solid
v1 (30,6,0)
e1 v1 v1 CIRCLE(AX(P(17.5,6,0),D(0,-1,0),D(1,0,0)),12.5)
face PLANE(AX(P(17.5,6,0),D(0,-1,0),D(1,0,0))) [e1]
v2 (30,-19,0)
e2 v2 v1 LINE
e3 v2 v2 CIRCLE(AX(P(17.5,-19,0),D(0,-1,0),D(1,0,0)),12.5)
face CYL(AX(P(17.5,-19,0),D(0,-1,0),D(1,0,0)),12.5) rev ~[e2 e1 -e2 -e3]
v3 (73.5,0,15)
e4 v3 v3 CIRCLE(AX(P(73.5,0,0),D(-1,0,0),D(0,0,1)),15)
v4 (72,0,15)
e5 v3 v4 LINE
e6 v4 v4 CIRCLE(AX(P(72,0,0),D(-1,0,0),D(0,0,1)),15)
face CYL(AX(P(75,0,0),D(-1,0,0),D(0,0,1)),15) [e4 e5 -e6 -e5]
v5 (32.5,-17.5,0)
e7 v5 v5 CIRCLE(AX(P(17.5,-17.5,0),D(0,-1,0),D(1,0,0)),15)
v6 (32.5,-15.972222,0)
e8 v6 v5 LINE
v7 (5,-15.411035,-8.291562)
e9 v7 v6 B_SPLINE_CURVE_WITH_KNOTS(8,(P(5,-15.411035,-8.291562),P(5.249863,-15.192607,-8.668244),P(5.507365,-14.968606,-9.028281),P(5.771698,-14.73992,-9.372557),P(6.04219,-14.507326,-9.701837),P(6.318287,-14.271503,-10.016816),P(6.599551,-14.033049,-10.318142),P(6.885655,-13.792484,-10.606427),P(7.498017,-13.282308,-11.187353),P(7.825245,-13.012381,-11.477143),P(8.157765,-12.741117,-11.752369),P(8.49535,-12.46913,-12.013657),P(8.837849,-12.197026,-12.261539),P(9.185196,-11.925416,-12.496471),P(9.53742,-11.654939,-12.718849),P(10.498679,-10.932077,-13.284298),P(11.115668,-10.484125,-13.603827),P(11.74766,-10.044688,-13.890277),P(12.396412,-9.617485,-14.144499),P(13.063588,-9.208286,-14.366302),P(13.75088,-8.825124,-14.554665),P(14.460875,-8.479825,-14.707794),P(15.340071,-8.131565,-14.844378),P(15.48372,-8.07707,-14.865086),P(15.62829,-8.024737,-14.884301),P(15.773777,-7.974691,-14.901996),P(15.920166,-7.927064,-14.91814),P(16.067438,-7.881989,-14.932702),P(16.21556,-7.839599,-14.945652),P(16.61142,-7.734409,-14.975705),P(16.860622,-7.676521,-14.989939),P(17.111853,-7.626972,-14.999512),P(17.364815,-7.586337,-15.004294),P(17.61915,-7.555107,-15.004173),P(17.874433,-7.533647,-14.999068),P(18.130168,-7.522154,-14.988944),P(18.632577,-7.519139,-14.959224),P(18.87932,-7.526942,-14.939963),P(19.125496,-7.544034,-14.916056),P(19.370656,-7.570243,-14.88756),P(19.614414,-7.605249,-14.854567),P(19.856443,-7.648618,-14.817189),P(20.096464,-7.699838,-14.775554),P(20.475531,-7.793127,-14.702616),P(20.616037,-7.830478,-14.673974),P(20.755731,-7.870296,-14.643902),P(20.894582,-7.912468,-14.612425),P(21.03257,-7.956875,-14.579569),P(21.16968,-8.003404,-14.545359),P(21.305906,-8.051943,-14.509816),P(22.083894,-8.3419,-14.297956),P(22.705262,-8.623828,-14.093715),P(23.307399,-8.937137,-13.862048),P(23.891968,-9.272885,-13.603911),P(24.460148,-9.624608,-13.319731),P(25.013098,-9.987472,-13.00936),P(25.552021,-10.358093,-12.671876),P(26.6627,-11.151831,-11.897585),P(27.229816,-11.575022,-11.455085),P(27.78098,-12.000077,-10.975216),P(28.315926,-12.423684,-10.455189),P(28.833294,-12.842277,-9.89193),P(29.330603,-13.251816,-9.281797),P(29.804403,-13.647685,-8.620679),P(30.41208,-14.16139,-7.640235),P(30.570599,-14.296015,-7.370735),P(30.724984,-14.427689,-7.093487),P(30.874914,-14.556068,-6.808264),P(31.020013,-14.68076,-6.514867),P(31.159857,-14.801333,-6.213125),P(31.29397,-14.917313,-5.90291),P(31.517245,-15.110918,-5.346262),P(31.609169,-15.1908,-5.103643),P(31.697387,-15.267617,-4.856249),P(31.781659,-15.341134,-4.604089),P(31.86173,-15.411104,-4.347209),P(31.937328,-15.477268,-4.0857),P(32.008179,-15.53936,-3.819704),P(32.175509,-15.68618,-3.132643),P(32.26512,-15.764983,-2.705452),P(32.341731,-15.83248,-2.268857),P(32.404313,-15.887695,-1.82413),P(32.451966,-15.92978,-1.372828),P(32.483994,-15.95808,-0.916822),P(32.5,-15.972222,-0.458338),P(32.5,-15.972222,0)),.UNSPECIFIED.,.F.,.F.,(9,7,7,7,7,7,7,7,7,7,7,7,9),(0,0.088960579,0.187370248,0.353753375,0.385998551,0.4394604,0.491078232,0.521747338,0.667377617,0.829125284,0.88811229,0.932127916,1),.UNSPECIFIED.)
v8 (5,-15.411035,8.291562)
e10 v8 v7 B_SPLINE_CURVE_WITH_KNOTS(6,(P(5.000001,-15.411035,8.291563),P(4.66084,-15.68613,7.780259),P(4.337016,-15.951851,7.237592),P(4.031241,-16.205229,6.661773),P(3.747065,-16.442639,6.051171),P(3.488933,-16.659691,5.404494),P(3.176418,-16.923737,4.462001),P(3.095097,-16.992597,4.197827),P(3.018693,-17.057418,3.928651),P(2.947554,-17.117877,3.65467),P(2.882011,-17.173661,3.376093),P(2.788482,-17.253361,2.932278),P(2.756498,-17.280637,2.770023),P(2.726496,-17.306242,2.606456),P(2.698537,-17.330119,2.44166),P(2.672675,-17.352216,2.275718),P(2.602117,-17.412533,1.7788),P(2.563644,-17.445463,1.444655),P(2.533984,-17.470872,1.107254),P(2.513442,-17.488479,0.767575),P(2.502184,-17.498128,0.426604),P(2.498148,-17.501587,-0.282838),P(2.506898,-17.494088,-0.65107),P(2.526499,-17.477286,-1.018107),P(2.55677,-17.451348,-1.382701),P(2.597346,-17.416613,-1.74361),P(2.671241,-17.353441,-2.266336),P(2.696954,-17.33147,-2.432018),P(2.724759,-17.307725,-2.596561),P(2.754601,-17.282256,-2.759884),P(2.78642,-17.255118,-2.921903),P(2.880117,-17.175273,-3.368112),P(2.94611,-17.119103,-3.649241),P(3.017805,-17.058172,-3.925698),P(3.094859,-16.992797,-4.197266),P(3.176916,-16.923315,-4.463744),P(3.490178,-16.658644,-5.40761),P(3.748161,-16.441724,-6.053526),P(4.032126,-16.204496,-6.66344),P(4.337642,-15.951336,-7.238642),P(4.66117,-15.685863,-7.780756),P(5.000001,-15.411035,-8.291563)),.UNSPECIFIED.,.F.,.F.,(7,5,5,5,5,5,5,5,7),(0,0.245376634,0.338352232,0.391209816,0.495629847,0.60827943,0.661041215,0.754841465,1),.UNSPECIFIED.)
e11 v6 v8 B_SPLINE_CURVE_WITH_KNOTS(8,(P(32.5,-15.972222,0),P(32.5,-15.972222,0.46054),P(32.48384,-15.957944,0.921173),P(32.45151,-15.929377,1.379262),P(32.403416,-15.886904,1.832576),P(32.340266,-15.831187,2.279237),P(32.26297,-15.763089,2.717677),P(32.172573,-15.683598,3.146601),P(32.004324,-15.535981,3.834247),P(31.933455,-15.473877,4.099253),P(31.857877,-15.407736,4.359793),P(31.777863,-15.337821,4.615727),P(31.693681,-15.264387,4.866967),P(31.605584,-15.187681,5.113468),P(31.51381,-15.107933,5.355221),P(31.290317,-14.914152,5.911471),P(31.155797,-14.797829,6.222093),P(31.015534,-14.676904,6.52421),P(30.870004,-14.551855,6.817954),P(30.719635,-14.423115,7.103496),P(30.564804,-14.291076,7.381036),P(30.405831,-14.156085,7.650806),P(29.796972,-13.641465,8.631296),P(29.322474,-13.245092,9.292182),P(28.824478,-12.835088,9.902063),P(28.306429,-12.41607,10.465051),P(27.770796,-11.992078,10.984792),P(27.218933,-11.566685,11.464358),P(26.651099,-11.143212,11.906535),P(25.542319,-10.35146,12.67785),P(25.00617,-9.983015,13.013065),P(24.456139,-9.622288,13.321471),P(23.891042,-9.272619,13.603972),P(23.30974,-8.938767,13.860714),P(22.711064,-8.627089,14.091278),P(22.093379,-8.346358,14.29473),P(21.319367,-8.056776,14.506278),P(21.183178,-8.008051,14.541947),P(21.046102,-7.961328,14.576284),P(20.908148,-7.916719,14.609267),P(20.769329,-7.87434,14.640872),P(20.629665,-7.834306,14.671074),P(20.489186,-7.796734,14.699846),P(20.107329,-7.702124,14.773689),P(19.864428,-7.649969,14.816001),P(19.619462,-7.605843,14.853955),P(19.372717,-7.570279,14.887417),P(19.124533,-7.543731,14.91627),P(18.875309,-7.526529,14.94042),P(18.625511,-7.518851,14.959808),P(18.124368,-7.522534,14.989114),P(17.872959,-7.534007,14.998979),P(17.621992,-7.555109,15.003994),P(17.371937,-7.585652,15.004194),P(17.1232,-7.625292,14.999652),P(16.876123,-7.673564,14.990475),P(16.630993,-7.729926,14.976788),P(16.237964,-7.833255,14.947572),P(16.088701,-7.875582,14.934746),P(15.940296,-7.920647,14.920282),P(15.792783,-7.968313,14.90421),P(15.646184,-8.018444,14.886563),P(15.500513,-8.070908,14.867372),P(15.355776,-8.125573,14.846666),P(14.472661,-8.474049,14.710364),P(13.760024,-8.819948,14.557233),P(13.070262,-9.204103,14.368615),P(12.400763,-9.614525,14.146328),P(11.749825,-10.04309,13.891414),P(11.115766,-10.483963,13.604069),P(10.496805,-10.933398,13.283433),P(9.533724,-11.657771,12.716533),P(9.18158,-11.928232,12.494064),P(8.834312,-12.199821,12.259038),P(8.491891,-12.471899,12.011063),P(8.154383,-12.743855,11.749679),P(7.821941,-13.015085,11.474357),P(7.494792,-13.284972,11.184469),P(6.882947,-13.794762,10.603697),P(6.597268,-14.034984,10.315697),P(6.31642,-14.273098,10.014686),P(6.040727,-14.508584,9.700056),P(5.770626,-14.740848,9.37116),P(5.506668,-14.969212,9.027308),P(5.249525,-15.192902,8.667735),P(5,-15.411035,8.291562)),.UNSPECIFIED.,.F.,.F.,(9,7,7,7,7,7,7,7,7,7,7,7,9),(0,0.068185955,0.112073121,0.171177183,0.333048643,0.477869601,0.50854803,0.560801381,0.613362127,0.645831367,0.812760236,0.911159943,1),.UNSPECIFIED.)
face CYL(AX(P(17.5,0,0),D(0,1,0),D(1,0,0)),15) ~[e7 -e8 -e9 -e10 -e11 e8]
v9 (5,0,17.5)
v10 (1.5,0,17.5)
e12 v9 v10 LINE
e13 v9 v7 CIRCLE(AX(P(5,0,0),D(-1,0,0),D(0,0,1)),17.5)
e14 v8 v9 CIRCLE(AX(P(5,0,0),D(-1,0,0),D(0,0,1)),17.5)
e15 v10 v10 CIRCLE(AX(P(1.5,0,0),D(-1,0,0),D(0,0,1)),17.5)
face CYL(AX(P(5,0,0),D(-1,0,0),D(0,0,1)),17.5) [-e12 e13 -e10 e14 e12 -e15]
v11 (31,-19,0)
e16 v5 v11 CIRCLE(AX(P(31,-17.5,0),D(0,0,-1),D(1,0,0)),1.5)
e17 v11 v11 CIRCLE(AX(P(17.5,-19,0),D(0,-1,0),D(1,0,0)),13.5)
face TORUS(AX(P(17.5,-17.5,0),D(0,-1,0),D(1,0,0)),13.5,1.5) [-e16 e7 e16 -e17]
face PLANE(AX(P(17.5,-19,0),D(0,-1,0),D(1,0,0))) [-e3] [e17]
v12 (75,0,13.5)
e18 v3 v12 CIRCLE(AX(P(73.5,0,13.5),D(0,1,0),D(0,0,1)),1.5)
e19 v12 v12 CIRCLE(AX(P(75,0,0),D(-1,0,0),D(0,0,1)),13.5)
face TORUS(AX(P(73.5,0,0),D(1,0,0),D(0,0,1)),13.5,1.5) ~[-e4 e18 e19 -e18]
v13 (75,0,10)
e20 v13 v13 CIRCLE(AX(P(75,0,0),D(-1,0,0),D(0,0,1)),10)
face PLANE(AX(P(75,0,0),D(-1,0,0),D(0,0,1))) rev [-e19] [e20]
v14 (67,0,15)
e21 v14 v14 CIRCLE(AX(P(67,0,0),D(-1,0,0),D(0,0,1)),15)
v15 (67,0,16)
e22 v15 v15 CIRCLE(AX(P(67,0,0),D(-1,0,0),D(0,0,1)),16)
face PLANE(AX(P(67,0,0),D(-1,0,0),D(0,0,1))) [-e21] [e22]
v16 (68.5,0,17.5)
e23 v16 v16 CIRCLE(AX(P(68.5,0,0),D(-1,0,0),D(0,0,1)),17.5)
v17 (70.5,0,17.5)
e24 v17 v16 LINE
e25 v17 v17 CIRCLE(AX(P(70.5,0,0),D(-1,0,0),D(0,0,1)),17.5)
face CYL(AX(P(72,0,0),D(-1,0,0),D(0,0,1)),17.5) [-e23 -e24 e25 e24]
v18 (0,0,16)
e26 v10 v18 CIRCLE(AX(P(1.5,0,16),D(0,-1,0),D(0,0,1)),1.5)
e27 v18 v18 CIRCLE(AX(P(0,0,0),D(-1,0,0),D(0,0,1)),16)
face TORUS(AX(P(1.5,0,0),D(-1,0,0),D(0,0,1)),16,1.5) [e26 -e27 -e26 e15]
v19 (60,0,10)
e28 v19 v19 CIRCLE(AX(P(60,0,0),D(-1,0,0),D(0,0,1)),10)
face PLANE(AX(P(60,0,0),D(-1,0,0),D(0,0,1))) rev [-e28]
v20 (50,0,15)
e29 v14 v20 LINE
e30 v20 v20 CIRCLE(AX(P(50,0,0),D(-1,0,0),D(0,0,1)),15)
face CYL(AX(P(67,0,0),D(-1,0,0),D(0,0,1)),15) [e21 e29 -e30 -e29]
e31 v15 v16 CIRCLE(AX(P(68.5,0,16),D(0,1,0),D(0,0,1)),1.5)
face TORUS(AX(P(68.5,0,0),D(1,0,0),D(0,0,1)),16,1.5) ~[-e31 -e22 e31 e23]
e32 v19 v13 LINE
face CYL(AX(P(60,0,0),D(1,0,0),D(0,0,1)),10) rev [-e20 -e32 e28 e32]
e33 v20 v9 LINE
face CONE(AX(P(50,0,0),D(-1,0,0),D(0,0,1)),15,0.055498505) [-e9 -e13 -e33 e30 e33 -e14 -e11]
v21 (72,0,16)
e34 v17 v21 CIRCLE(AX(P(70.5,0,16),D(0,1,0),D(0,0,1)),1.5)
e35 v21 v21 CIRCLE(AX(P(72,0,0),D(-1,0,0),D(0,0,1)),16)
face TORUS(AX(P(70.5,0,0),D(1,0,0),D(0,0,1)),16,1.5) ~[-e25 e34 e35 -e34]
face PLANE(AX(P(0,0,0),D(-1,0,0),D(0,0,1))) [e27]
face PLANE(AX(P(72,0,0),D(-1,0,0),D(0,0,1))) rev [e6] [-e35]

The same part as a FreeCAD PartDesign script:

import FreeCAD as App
import Part
import Sketcher


def edges_at(feature, points):
    """Names of the edges that pass closest to the given points."""
    edges = feature.Shape.Edges
    near = lambda p: min(range(len(edges)), key=lambda i: edges[i].distToShape(Part.Vertex(*p))[0])
    return sorted({f"Edge{near(p) + 1}" for p in points})

doc = App.newDocument("Part")
params = doc.addObject("Spreadsheet::Sheet", "Params")
for row, (alias, value) in enumerate([
    ("sketch1_width", "60 mm"),
    ("sketch1_width2", "15 mm"),
    ("sketch1_width3", "3 mm"),
    ("sketch1_width4", "5 mm"),
    ("sketch1_width5", "17 mm"),
    ("revolution_angle", "360 deg"),
    ("sketch2_diameter", "30 mm"),
    ("pad1_length", "19 mm"),
    ("sketch3_diameter", "25 mm"),
    ("pocket1_length", "25 mm"),
    ("fillet_radius", "1.5 mm"),
], start=1):
    params.set(f"A{row}", alias)
    params.set(f"B{row}", "=" + value)
    params.setAlias(f"B{row}", alias)

body = doc.addObject("PartDesign::Body", "Body")

# Sketch on XZ plane
sketch1 = body.newObject("Sketcher::SketchObject", "Sketch")
sketch1.AttachmentSupport = (doc.getObject("XZ_Plane"), [""])
sketch1.MapMode = "FlatFace"
sketch1.addGeometry([
    Part.LineSegment(App.Vector(0, 17.5, 0), App.Vector(0, 0, 0)),  # 0
    Part.LineSegment(App.Vector(0, 0, 0), App.Vector(60, 0, 0)),  # 1
    Part.LineSegment(App.Vector(60, 0, 0), App.Vector(60, 10, 0)),  # 2
    Part.LineSegment(App.Vector(60, 10, 0), App.Vector(75, 10, 0)),  # 3
    Part.LineSegment(App.Vector(75, 10, 0), App.Vector(75, 15, 0)),  # 4
    Part.LineSegment(App.Vector(75, 15, 0), App.Vector(72, 15, 0)),  # 5
    Part.LineSegment(App.Vector(72, 15, 0), App.Vector(72, 17.5, 0)),  # 6
    Part.LineSegment(App.Vector(72, 17.5, 0), App.Vector(67, 17.5, 0)),  # 7
    Part.LineSegment(App.Vector(67, 17.5, 0), App.Vector(67, 15, 0)),  # 8
    Part.LineSegment(App.Vector(67, 15, 0), App.Vector(50, 15, 0)),  # 9
    Part.LineSegment(App.Vector(50, 15, 0), App.Vector(5, 17.5, 0)),  # 10
    Part.LineSegment(App.Vector(5, 17.5, 0), App.Vector(0, 17.5, 0)),  # 11
], False)
sketch1.addConstraint([
    Sketcher.Constraint("Coincident", 0, 2, 1, 1),
    Sketcher.Constraint("Coincident", 1, 2, 2, 1),
    Sketcher.Constraint("Coincident", 2, 2, 3, 1),
    Sketcher.Constraint("Coincident", 3, 2, 4, 1),
    Sketcher.Constraint("Coincident", 4, 2, 5, 1),
    Sketcher.Constraint("Coincident", 5, 2, 6, 1),
    Sketcher.Constraint("Coincident", 6, 2, 7, 1),
    Sketcher.Constraint("Coincident", 7, 2, 8, 1),
    Sketcher.Constraint("Coincident", 8, 2, 9, 1),
    Sketcher.Constraint("Coincident", 9, 2, 10, 1),
    Sketcher.Constraint("Coincident", 10, 2, 11, 1),
    Sketcher.Constraint("Coincident", 11, 2, 0, 1),
    Sketcher.Constraint("Vertical", 0),
    Sketcher.Constraint("Horizontal", 1),
    Sketcher.Constraint("Vertical", 2),
    Sketcher.Constraint("Horizontal", 3),
    Sketcher.Constraint("Vertical", 4),
    Sketcher.Constraint("Horizontal", 5),
    Sketcher.Constraint("Vertical", 6),
    Sketcher.Constraint("Horizontal", 7),
    Sketcher.Constraint("Vertical", 8),
    Sketcher.Constraint("Horizontal", 9),
    Sketcher.Constraint("Horizontal", 11),
    Sketcher.Constraint("Coincident", 0, 2, -1, 1),
    Sketcher.Constraint("Horizontal", 5, 2, 8, 2),
    Sketcher.Constraint("Horizontal", 7, 2, 10, 2),
    Sketcher.Constraint("Equal", 7, 11),
    Sketcher.Constraint("Equal", 11, 4),
    Sketcher.Constraint("DistanceX", 1, 1, 1, 2, 60.0),
    Sketcher.Constraint("DistanceX", 3, 1, 3, 2, 15.0),
    Sketcher.Constraint("DistanceX", 5, 2, 5, 1, 3.0),
    Sketcher.Constraint("DistanceX", 7, 2, 7, 1, 5.0),
    Sketcher.Constraint("DistanceX", 9, 2, 9, 1, 17.0),
    Sketcher.Constraint("DistanceY", 2, 1, 2, 2, 10.0),
    Sketcher.Constraint("DistanceY", 0, 2, 0, 1, 17.5),
])
sketch1.setExpression("Constraints[28]", "Params.sketch1_width")
sketch1.setExpression("Constraints[29]", "Params.sketch1_width2")
sketch1.setExpression("Constraints[30]", "Params.sketch1_width3")
sketch1.setExpression("Constraints[31]", "Params.sketch1_width4")
sketch1.setExpression("Constraints[32]", "Params.sketch1_width5")
revolution = body.newObject("PartDesign::Revolution", "Revolution")
revolution.Profile = sketch1
revolution.ReferenceAxis = (sketch1, ["H_Axis"])
revolution.setExpression("Angle", "Params.revolution_angle")

# Sketch on XZ plane
sketch2 = body.newObject("Sketcher::SketchObject", "Sketch001")
sketch2.AttachmentSupport = (doc.getObject("XZ_Plane"), [""])
sketch2.MapMode = "FlatFace"
sketch2.addGeometry(Part.Circle(App.Vector(18, 0, 0), App.Vector(0, 0, 1), 15), False)
sketch2.addConstraint([
    Sketcher.Constraint("PointOnObject", 0, 3, -1),
    Sketcher.Constraint("Diameter", 0, 30.0),
    Sketcher.Constraint("DistanceX", -1, 1, 0, 3, 17.5),
])
sketch2.setExpression("Constraints[1]", "Params.sketch2_diameter")
pad1 = body.newObject("PartDesign::Pad", "Pad")
pad1.Profile = sketch2
pad1.setExpression("Length", "Params.pad1_length")

# Sketch on XZ plane
sketch3 = body.newObject("Sketcher::SketchObject", "Sketch002")
sketch3.AttachmentSupport = (doc.getObject("XZ_Plane"), [""])
sketch3.MapMode = "FlatFace"
sketch3.AttachmentOffset = App.Placement(App.Vector(0, 0, 19), App.Rotation())
sketch3.addGeometry(Part.Circle(App.Vector(18, 0, 0), App.Vector(0, 0, 1), 12), False)
sketch3.addConstraint([
    Sketcher.Constraint("PointOnObject", 0, 3, -1),
    Sketcher.Constraint("Diameter", 0, 25.0),
    Sketcher.Constraint("DistanceX", -1, 1, 0, 3, 17.5),
])
sketch3.setExpression("Constraints[1]", "Params.sketch3_diameter")
pocket1 = body.newObject("PartDesign::Pocket", "Pocket")
pocket1.Profile = sketch3
pocket1.setExpression("Length", "Params.pocket1_length")
doc.recompute()

fillet = body.newObject("PartDesign::Fillet", "Fillet")
fillet.Base = (pocket1, edges_at(pocket1, [
    (0, 0, -17.5),
    (67, 0, -17.5),
    (72, 0, -17.5),
    (2.5, -19, 0),
    (75, 0, -15),
]))
fillet.setExpression("Radius", "Params.fillet_radius")

doc.recompute()
